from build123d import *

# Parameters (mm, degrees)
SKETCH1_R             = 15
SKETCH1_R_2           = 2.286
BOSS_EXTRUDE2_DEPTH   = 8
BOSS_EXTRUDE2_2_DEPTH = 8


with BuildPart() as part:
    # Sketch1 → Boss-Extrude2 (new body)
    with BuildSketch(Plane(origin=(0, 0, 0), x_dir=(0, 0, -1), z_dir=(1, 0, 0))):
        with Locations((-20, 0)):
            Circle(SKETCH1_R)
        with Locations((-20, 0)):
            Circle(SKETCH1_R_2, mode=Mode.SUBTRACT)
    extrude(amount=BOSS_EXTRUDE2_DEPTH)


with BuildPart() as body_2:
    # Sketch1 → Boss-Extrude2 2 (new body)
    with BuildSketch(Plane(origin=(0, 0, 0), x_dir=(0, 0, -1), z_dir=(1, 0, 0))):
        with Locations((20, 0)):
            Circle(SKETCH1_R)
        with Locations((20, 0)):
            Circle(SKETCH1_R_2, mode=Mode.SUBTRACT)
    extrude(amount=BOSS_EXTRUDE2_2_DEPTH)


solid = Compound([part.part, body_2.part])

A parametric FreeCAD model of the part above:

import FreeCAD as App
import Part
import Sketcher
from FreeCAD import Vector

doc = App.newDocument("Part")
body = doc.addObject("PartDesign::Body", "Body")

# Sketch on YZ plane
sketch1 = body.newObject("Sketcher::SketchObject", "Sketch")
sketch1.AttachmentSupport = (doc.getObject("YZ_Plane"), [""])
sketch1.MapMode = "FlatFace"
sketch1.addGeometry([
    Part.Circle(Vector(0, 20, 0), Vector(0, 0, 1), 15),
    Part.Circle(Vector(0, 20, 0), Vector(0, 0, 1), 2.286),
], False)
sketch1.addConstraint([
    Sketcher.Constraint("Coincident", 1, 3, 0, 3),
    Sketcher.Constraint("PointOnObject", 0, 3, -2),
    Sketcher.Constraint("Diameter", 0, 30.0),
    Sketcher.Constraint("Diameter", 1, 4.572),
    Sketcher.Constraint("DistanceY", -1, 1, 0, 3, 20.0),
])
pad1 = body.newObject("PartDesign::Pad", "Pad")
pad1.Profile = sketch1
pad1.Length = 8
body2 = doc.addObject("PartDesign::Body", "Body001")

# Sketch on YZ plane
sketch2 = body2.newObject("Sketcher::SketchObject", "Sketch001")
sketch2.AttachmentSupport = (doc.getObject("YZ_Plane001"), [""])
sketch2.MapMode = "FlatFace"
sketch2.addGeometry([
    Part.Circle(Vector(0, -20, 0), Vector(0, 0, 1), 15),
    Part.Circle(Vector(0, -20, 0), Vector(0, 0, 1), 2.286),
], False)
sketch2.addConstraint([
    Sketcher.Constraint("Coincident", 1, 3, 0, 3),
    Sketcher.Constraint("PointOnObject", 0, 3, -2),
    Sketcher.Constraint("Diameter", 0, 30.0),
    Sketcher.Constraint("Diameter", 1, 4.572),
    Sketcher.Constraint("DistanceY", 0, 3, -1, 1, 20.0),
])
pad2 = body2.newObject("PartDesign::Pad", "Pad001")
pad2.Profile = sketch2
pad2.Length = 8

doc.recompute()
